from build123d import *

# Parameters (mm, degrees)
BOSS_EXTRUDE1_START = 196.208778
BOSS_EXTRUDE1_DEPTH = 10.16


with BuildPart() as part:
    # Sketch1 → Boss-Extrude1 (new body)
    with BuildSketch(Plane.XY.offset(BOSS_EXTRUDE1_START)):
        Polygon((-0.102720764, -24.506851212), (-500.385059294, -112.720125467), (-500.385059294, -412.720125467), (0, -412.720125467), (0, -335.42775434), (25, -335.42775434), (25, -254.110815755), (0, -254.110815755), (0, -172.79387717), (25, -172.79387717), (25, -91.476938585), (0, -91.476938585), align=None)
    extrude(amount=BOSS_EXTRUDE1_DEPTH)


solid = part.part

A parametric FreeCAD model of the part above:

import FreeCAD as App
import Part
import Sketcher

V = App.Vector
Q = App.Units.Quantity

doc = App.newDocument("Part")
params = doc.addObject("Spreadsheet::Sheet", "Params")
for row, (alias, value) in enumerate([
    ("sketch1_width", "25 mm"),
    ("sketch1_height", "300 mm"),
    ("sketch1_length", "508 mm"),
    ("pad1_length", "10.16 mm"),
], start=1):
    params.set(f"A{row}", alias)
    params.set(f"B{row}", "=" + value)
    params.setAlias(f"B{row}", alias)

body = doc.addObject("PartDesign::Body", "Body")

sketch1 = body.newObject("Sketcher::SketchObject", "Sketch")
sketch1.AttachmentSupport = (doc.getObject("XY_Plane"), [""])
sketch1.MapMode = "FlatFace"
sketch1.AttachmentOffset = App.Placement(V(0, 0, 196.208778), App.Rotation())
sketch1.addGeometry(Part.LineSegment(V(-0.102721, -24.506851, 0), V(-500.385059, -112.720125, 0)), False)
sketch1.addGeometry(Part.LineSegment(V(-500.385059, -112.720125, 0), V(-500.385059, -412.720125, 0)), False)
sketch1.addGeometry(Part.LineSegment(V(-500.385059, -412.720125, 0), V(0, -412.720125, 0)), False)
sketch1.addGeometry(Part.LineSegment(V(0, -412.720125, 0), V(0, -335.427754, 0)), False)
sketch1.addGeometry(Part.LineSegment(V(0, -335.427754, 0), V(25, -335.427754, 0)), False)
sketch1.addGeometry(Part.LineSegment(V(25, -335.427754, 0), V(25, -254.110816, 0)), False)
sketch1.addGeometry(Part.LineSegment(V(25, -254.110816, 0), V(0, -254.110816, 0)), False)
sketch1.addGeometry(Part.LineSegment(V(0, -254.110816, 0), V(0, -172.793877, 0)), False)
sketch1.addGeometry(Part.LineSegment(V(0, -172.793877, 0), V(25, -172.793877, 0)), False)
sketch1.addGeometry(Part.LineSegment(V(25, -172.793877, 0), V(25, -91.476939, 0)), False)
sketch1.addGeometry(Part.LineSegment(V(25, -91.476939, 0), V(0, -91.476939, 0)), False)
sketch1.addGeometry(Part.LineSegment(V(0, -91.476939, 0), V(-0.102721, -24.506851, 0)), False)
sketch1.addConstraint(Sketcher.Constraint("Coincident", 0, 2, 1, 1))
sketch1.addConstraint(Sketcher.Constraint("Coincident", 1, 2, 2, 1))
sketch1.addConstraint(Sketcher.Constraint("Coincident", 2, 2, 3, 1))
sketch1.addConstraint(Sketcher.Constraint("Coincident", 3, 2, 4, 1))
sketch1.addConstraint(Sketcher.Constraint("Coincident", 4, 2, 5, 1))
sketch1.addConstraint(Sketcher.Constraint("Coincident", 5, 2, 6, 1))
sketch1.addConstraint(Sketcher.Constraint("Coincident", 6, 2, 7, 1))
sketch1.addConstraint(Sketcher.Constraint("Coincident", 7, 2, 8, 1))
sketch1.addConstraint(Sketcher.Constraint("Coincident", 8, 2, 9, 1))
sketch1.addConstraint(Sketcher.Constraint("Coincident", 9, 2, 10, 1))
sketch1.addConstraint(Sketcher.Constraint("Coincident", 10, 2, 11, 1))
sketch1.addConstraint(Sketcher.Constraint("Coincident", 11, 2, 0, 1))
sketch1.addConstraint(Sketcher.Constraint("Vertical", 1))
sketch1.addConstraint(Sketcher.Constraint("Horizontal", 2))
sketch1.addConstraint(Sketcher.Constraint("Vertical", 3))
sketch1.addConstraint(Sketcher.Constraint("Horizontal", 4))
sketch1.addConstraint(Sketcher.Constraint("Vertical", 5))
sketch1.addConstraint(Sketcher.Constraint("Horizontal", 6))
sketch1.addConstraint(Sketcher.Constraint("Vertical", 7))
sketch1.addConstraint(Sketcher.Constraint("Horizontal", 8))
sketch1.addConstraint(Sketcher.Constraint("Vertical", 9))
sketch1.addConstraint(Sketcher.Constraint("Horizontal", 10))
sketch1.addConstraint(Sketcher.Constraint("PointOnObject", 2, 2, -2))
sketch1.addConstraint(Sketcher.Constraint("PointOnObject", 6, 2, -2))
sketch1.addConstraint(Sketcher.Constraint("PointOnObject", 10, 2, -2))
sketch1.addConstraint(Sketcher.Constraint("Vertical", 5, 2, 8, 2))
sketch1.addConstraint(Sketcher.Constraint("Equal", 5, 7))
sketch1.addConstraint(Sketcher.Constraint("Equal", 7, 9))
sketch1.addConstraint(Sketcher.Constraint("DistanceX", 4, 1, 4, 2, Q("25 mm")))
sketch1.addConstraint(Sketcher.Constraint("DistanceY", 1, 2, 1, 1, Q("300 mm")))
sketch1.addConstraint(Sketcher.Constraint("Angle", 0, Q("-170 deg")))
sketch1.addConstraint(Sketcher.Constraint("Distance", 0, Q("508 mm")))
sketch1.addConstraint(Sketcher.Constraint("DistanceX", 2, 1, 2, 2, Q("500.385059 mm")))
sketch1.addConstraint(Sketcher.Constraint("DistanceY", 3, 1, 3, 2, Q("77.292371 mm")))
sketch1.addConstraint(Sketcher.Constraint("DistanceY", 5, 1, 5, 2, Q("81.316939 mm")))
sketch1.addConstraint(Sketcher.Constraint("DistanceY", 9, 2, -1, 1, Q("91.476939 mm")))
sketch1.setExpression("Constraints[28]", "Params.sketch1_width")
sketch1.setExpression("Constraints[29]", "Params.sketch1_height")
sketch1.setExpression("Constraints[31]", "Params.sketch1_length")
pad1 = body.newObject("PartDesign::Pad", "Pad")
pad1.Profile = sketch1
pad1.setExpression("Length", "Params.pad1_length")

doc.recompute()
